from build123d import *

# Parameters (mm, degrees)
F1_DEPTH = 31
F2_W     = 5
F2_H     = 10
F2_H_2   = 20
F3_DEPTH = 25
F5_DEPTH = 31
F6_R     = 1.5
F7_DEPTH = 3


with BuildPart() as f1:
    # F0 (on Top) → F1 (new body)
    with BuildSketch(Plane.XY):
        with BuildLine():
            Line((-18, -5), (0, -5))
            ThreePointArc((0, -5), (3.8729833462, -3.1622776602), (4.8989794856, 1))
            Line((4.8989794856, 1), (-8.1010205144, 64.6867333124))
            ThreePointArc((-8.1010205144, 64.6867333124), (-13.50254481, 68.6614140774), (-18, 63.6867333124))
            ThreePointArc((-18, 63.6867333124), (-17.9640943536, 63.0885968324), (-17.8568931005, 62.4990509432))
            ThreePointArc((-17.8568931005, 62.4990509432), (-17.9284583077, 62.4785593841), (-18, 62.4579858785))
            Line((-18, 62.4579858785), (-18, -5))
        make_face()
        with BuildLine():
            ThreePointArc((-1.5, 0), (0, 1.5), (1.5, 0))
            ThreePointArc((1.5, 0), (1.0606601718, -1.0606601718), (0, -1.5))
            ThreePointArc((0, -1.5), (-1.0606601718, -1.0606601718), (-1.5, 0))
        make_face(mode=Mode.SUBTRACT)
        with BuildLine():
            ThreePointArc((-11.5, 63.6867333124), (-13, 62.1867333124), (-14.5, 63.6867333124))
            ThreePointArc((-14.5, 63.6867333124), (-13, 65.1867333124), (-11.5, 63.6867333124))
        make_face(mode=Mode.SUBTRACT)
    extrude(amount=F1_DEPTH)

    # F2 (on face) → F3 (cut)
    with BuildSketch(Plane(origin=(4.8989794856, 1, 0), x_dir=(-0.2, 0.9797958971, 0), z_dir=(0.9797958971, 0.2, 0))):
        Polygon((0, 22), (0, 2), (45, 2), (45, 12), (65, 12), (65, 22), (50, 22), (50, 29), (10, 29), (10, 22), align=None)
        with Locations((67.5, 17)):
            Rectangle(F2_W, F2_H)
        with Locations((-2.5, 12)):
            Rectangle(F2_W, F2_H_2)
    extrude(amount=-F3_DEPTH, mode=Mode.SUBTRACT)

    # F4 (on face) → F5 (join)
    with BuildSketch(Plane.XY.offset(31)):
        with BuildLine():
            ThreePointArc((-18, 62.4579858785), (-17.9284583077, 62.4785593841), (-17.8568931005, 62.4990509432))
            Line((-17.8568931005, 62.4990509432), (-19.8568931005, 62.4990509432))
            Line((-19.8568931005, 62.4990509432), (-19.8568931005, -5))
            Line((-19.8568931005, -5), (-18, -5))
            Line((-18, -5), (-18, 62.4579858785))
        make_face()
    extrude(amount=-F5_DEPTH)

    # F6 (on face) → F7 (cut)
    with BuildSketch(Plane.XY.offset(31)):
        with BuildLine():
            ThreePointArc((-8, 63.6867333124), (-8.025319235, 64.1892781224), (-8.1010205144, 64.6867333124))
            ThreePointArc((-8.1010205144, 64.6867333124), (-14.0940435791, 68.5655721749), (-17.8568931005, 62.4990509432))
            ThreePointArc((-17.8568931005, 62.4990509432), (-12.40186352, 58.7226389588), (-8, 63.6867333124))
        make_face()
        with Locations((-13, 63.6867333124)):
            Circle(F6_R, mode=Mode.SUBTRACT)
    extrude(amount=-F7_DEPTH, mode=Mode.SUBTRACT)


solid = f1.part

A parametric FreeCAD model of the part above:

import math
import FreeCAD as App
import Part
import Sketcher

V = App.Vector


def add_polygon(sketch, points):
    """Adds a closed chain of lines whose ends are joined by coincident constraints."""
    first, n = sketch.GeometryCount, len(points)
    for a, b in zip(points, points[1:] + points[:1]):
        sketch.addGeometry(Part.LineSegment(App.Vector(*a, 0), App.Vector(*b, 0)), False)
    for i in range(n):
        sketch.addConstraint(Sketcher.Constraint("Coincident", first + i, 2, first + (i + 1) % n, 1))

doc = App.newDocument("Part")
body = doc.addObject("PartDesign::Body", "Body")
body.AllowCompound = True

# Sketch on XY plane
sketch1 = body.newObject("Sketcher::SketchObject", "Sketch")
sketch1.AttachmentSupport = (doc.getObject("XY_Plane"), [""])
sketch1.MapMode = "FlatFace"
sketch1.addGeometry([
    Part.LineSegment(V(-18, -5, 0), V(0, -5, 0)),  # 0
    Part.ArcOfCircle(Part.Circle(V(0, 0, 0), V(0, 0, 1), 5), math.radians(-90), math.radians(11.536959)),  # 1
    Part.LineSegment(V(4.898979, 1, 0), V(-8.101021, 64.686733, 0)),  # 2
    Part.ArcOfCircle(Part.Circle(V(-13, 63.686733, 0), V(0, 0, 1), 5), math.radians(11.536959), math.radians(180)),  # 3
    Part.ArcOfCircle(Part.Circle(V(-13, 63.686733, 0), V(0, 0, 1), 5), math.radians(180), math.radians(193.741187)),  # 4
    Part.ArcOfCircle(Part.Circle(V(-0.000007, 0.000026, 0), V(0, 0, 1), 64.999973), math.radians(105.945414), math.radians(106.07665)),  # 5
    Part.LineSegment(V(-18, 62.457986, 0), V(-18, -5, 0)),  # 6
    Part.ArcOfCircle(Part.Circle(V(0, 0, 0), V(0, 0, 1), 1.5), math.radians(180), math.radians(270)),  # 7
    Part.ArcOfCircle(Part.Circle(V(0, 0, 0), V(0, 0, 1), 1.5), math.radians(0), math.radians(180)),  # 8
    Part.ArcOfCircle(Part.Circle(V(0, 0, 0), V(0, 0, 1), 1.5), math.radians(-90), math.radians(0)),  # 9
    Part.Circle(V(-13, 63.686733, 0), V(0, 0, 1), 1.5),  # 10
], False)
sketch1.addConstraint([
    Sketcher.Constraint("Tangent", 0, 2, 1, 1),
    Sketcher.Constraint("Tangent", 1, 2, 2, 1),
    Sketcher.Constraint("Tangent", 2, 2, 3, 1),
    Sketcher.Constraint("Tangent", 3, 2, 4, 1),
    Sketcher.Constraint("Coincident", 4, 2, 5, 1),
    Sketcher.Constraint("Coincident", 5, 2, 6, 1),
    Sketcher.Constraint("Coincident", 6, 2, 0, 1),
    Sketcher.Constraint("Tangent", 7, 1, 8, 2),
    Sketcher.Constraint("Tangent", 8, 1, 9, 2),
    Sketcher.Constraint("Tangent", 9, 1, 7, 2),
    Sketcher.Constraint("Horizontal", 0),
    Sketcher.Constraint("Vertical", 6),
    Sketcher.Constraint("Coincident", 1, 3, -1, 1),
    Sketcher.Constraint("Coincident", 7, 3, -1, 1),
    Sketcher.Constraint("Coincident", 10, 3, 3, 3),
    Sketcher.Constraint("Equal", 1, 3),
    Sketcher.Constraint("Equal", 3, 4),
    Sketcher.Constraint("Equal", 9, 10),
    Sketcher.Constraint("PointOnObject", 7, 1, -1),
    Sketcher.Constraint("PointOnObject", 8, 1, -1),
    Sketcher.Constraint("PointOnObject", 9, 1, -2),
    Sketcher.Constraint("Horizontal", 10, 3, 3, 2),
    Sketcher.Constraint("Vertical", 3, 2, 5, 2),
    Sketcher.Constraint("Diameter", 10, 3.0),
    Sketcher.Constraint("Radius", 1, 5.0),
    Sketcher.Constraint("DistanceX", 0, 1, 0, 2, 18.0),
    Sketcher.Constraint("Distance", 2, 65.0),
    Sketcher.Constraint("Radius", 5, 64.999973),
    Sketcher.Constraint("DistanceY", 6, 2, 6, 1, 67.457986),
    Sketcher.Constraint("DistanceX", 3, 3, 5, 3, 12.999993),
])
pad1 = body.newObject("PartDesign::Pad", "Pad")
pad1.Profile = sketch1
pad1.Length = 31

# Sketch on an angled plane
sketch2 = body.newObject("Sketcher::SketchObject", "Sketch001")
sketch2.Placement = App.Placement(V(4.898979, 1, 0), App.Rotation(V(-0.2, 0.979795897, 0), V(0, 0, 1), V(0.979795897, 0.2, 0), "ZXY"))
add_polygon(sketch2, [(45, 2), (45, 12), (70, 12), (70, 22), (50, 22), (50, 29), (10, 29), (10, 22), (-5, 22), (-5, 2)])  # lines 0-9
sketch2.addConstraint([
    Sketcher.Constraint("Vertical", 0),
    Sketcher.Constraint("Horizontal", 1),
    Sketcher.Constraint("Vertical", 2),
    Sketcher.Constraint("Horizontal", 3),
    Sketcher.Constraint("Vertical", 4),
    Sketcher.Constraint("Horizontal", 5),
    Sketcher.Constraint("Vertical", 6),
    Sketcher.Constraint("Horizontal", 7),
    Sketcher.Constraint("Vertical", 8),
    Sketcher.Constraint("Horizontal", 9),
    Sketcher.Constraint("Horizontal", 3, 2, 6, 2),
    Sketcher.Constraint("Equal", 0, 2),
    Sketcher.Constraint("Equal", 3, 8),
    Sketcher.Constraint("DistanceX", 1, 1, 1, 2, 25.0),
    Sketcher.Constraint("DistanceX", 3, 2, 3, 1, 20.0),
    Sketcher.Constraint("DistanceX", 5, 2, 5, 1, 40.0),
    Sketcher.Constraint("DistanceX", 7, 2, 7, 1, 15.0),
    Sketcher.Constraint("DistanceY", 4, 1, 4, 2, 7.0),
    Sketcher.Constraint("DistanceX", -1, 1, 0, 2, 45.0),
    Sketcher.Constraint("DistanceY", -1, 1, 0, 2, 12.0),
])
pocket1 = body.newObject("PartDesign::Pocket", "Pocket")
pocket1.Profile = sketch2
pocket1.Length = 25

# Sketch on XY plane
sketch3 = body.newObject("Sketcher::SketchObject", "Sketch002")
sketch3.AttachmentSupport = (doc.getObject("XY_Plane"), [""])
sketch3.MapMode = "FlatFace"
sketch3.AttachmentOffset = App.Placement(V(0, 0, 31), App.Rotation())
sketch3.addGeometry([
    Part.ArcOfCircle(Part.Circle(V(-0.000007, 0.000026, 0), V(0, 0, 1), 64.999973), math.radians(105.945414), math.radians(106.07665)),  # 0
    Part.LineSegment(V(-17.856893, 62.499051, 0), V(-19.856893, 62.499051, 0)),  # 1
    Part.LineSegment(V(-19.856893, 62.499051, 0), V(-19.856893, -5, 0)),  # 2
    Part.LineSegment(V(-19.856893, -5, 0), V(-18, -5, 0)),  # 3
    Part.LineSegment(V(-18, -5, 0), V(-18, 62.457986, 0)),  # 4
], False)
sketch3.addConstraint([
    Sketcher.Constraint("Coincident", 0, 1, 1, 1),
    Sketcher.Constraint("Coincident", 1, 2, 2, 1),
    Sketcher.Constraint("Coincident", 2, 2, 3, 1),
    Sketcher.Constraint("Coincident", 3, 2, 4, 1),
    Sketcher.Constraint("Coincident", 4, 2, 0, 2),
    Sketcher.Constraint("Horizontal", 1),
    Sketcher.Constraint("Vertical", 2),
    Sketcher.Constraint("Horizontal", 3),
    Sketcher.Constraint("Vertical", 4),
    Sketcher.Constraint("DistanceX", 1, 2, 1, 1, 2.0),
    Sketcher.Constraint("DistanceY", 2, 2, -1, 1, 5.0),
    Sketcher.Constraint("DistanceX", 3, 2, -1, 1, 18.0),
    Sketcher.Constraint("Radius", 0, 64.999973),
    Sketcher.Constraint("DistanceY", 2, 2, 2, 1, 67.499051),
    Sketcher.Constraint("DistanceX", 3, 1, 3, 2, 1.856893),
    Sketcher.Constraint("DistanceY", 0, 3, 4, 2, 62.45796),
])
pad2 = body.newObject("PartDesign::Pad", "Pad001")
pad2.Profile = sketch3
pad2.Length = 31
pad2.Reversed = True

# Sketch on XY plane
sketch4 = body.newObject("Sketcher::SketchObject", "Sketch003")
sketch4.AttachmentSupport = (doc.getObject("XY_Plane"), [""])
sketch4.MapMode = "FlatFace"
sketch4.AttachmentOffset = App.Placement(V(0, 0, 31), App.Rotation())
sketch4.addGeometry([
    Part.ArcOfCircle(Part.Circle(V(-13, 63.686733, 0), V(0, 0, 1), 5), math.radians(0), math.radians(11.536959)),
    Part.ArcOfCircle(Part.Circle(V(-13, 63.686733, 0), V(0, 0, 1), 5), math.radians(11.536959), math.radians(193.741187)),
    Part.ArcOfCircle(Part.Circle(V(-13, 63.686733, 0), V(0, 0, 1), 5), math.radians(-166.258813), math.radians(0)),
    Part.Circle(V(-13, 63.686733, 0), V(0, 0, 1), 1.5),
], False)
sketch4.addConstraint([
    Sketcher.Constraint("Tangent", 0, 2, 1, 1),
    Sketcher.Constraint("Tangent", 1, 2, 2, 1),
    Sketcher.Constraint("Tangent", 2, 2, 0, 1),
    Sketcher.Constraint("Coincident", 3, 3, 0, 3),
    Sketcher.Constraint("Horizontal", 3, 3, 2, 2),
    Sketcher.Constraint("Diameter", 3, 3.0),
    Sketcher.Constraint("Radius", 0, 5.0),
    Sketcher.Constraint("DistanceX", 0, 3, -1, 1, 13.0),
    Sketcher.Constraint("DistanceY", 1, 3, 0, 2, 1.0),
    Sketcher.Constraint("DistanceY", -1, 1, 1, 2, 62.499051),
    Sketcher.Constraint("DistanceY", -1, 1, 0, 3, 63.686733),
])
pocket2 = body.newObject("PartDesign::Pocket", "Pocket001")
pocket2.Profile = sketch4
pocket2.Length = 3

doc.recompute()
